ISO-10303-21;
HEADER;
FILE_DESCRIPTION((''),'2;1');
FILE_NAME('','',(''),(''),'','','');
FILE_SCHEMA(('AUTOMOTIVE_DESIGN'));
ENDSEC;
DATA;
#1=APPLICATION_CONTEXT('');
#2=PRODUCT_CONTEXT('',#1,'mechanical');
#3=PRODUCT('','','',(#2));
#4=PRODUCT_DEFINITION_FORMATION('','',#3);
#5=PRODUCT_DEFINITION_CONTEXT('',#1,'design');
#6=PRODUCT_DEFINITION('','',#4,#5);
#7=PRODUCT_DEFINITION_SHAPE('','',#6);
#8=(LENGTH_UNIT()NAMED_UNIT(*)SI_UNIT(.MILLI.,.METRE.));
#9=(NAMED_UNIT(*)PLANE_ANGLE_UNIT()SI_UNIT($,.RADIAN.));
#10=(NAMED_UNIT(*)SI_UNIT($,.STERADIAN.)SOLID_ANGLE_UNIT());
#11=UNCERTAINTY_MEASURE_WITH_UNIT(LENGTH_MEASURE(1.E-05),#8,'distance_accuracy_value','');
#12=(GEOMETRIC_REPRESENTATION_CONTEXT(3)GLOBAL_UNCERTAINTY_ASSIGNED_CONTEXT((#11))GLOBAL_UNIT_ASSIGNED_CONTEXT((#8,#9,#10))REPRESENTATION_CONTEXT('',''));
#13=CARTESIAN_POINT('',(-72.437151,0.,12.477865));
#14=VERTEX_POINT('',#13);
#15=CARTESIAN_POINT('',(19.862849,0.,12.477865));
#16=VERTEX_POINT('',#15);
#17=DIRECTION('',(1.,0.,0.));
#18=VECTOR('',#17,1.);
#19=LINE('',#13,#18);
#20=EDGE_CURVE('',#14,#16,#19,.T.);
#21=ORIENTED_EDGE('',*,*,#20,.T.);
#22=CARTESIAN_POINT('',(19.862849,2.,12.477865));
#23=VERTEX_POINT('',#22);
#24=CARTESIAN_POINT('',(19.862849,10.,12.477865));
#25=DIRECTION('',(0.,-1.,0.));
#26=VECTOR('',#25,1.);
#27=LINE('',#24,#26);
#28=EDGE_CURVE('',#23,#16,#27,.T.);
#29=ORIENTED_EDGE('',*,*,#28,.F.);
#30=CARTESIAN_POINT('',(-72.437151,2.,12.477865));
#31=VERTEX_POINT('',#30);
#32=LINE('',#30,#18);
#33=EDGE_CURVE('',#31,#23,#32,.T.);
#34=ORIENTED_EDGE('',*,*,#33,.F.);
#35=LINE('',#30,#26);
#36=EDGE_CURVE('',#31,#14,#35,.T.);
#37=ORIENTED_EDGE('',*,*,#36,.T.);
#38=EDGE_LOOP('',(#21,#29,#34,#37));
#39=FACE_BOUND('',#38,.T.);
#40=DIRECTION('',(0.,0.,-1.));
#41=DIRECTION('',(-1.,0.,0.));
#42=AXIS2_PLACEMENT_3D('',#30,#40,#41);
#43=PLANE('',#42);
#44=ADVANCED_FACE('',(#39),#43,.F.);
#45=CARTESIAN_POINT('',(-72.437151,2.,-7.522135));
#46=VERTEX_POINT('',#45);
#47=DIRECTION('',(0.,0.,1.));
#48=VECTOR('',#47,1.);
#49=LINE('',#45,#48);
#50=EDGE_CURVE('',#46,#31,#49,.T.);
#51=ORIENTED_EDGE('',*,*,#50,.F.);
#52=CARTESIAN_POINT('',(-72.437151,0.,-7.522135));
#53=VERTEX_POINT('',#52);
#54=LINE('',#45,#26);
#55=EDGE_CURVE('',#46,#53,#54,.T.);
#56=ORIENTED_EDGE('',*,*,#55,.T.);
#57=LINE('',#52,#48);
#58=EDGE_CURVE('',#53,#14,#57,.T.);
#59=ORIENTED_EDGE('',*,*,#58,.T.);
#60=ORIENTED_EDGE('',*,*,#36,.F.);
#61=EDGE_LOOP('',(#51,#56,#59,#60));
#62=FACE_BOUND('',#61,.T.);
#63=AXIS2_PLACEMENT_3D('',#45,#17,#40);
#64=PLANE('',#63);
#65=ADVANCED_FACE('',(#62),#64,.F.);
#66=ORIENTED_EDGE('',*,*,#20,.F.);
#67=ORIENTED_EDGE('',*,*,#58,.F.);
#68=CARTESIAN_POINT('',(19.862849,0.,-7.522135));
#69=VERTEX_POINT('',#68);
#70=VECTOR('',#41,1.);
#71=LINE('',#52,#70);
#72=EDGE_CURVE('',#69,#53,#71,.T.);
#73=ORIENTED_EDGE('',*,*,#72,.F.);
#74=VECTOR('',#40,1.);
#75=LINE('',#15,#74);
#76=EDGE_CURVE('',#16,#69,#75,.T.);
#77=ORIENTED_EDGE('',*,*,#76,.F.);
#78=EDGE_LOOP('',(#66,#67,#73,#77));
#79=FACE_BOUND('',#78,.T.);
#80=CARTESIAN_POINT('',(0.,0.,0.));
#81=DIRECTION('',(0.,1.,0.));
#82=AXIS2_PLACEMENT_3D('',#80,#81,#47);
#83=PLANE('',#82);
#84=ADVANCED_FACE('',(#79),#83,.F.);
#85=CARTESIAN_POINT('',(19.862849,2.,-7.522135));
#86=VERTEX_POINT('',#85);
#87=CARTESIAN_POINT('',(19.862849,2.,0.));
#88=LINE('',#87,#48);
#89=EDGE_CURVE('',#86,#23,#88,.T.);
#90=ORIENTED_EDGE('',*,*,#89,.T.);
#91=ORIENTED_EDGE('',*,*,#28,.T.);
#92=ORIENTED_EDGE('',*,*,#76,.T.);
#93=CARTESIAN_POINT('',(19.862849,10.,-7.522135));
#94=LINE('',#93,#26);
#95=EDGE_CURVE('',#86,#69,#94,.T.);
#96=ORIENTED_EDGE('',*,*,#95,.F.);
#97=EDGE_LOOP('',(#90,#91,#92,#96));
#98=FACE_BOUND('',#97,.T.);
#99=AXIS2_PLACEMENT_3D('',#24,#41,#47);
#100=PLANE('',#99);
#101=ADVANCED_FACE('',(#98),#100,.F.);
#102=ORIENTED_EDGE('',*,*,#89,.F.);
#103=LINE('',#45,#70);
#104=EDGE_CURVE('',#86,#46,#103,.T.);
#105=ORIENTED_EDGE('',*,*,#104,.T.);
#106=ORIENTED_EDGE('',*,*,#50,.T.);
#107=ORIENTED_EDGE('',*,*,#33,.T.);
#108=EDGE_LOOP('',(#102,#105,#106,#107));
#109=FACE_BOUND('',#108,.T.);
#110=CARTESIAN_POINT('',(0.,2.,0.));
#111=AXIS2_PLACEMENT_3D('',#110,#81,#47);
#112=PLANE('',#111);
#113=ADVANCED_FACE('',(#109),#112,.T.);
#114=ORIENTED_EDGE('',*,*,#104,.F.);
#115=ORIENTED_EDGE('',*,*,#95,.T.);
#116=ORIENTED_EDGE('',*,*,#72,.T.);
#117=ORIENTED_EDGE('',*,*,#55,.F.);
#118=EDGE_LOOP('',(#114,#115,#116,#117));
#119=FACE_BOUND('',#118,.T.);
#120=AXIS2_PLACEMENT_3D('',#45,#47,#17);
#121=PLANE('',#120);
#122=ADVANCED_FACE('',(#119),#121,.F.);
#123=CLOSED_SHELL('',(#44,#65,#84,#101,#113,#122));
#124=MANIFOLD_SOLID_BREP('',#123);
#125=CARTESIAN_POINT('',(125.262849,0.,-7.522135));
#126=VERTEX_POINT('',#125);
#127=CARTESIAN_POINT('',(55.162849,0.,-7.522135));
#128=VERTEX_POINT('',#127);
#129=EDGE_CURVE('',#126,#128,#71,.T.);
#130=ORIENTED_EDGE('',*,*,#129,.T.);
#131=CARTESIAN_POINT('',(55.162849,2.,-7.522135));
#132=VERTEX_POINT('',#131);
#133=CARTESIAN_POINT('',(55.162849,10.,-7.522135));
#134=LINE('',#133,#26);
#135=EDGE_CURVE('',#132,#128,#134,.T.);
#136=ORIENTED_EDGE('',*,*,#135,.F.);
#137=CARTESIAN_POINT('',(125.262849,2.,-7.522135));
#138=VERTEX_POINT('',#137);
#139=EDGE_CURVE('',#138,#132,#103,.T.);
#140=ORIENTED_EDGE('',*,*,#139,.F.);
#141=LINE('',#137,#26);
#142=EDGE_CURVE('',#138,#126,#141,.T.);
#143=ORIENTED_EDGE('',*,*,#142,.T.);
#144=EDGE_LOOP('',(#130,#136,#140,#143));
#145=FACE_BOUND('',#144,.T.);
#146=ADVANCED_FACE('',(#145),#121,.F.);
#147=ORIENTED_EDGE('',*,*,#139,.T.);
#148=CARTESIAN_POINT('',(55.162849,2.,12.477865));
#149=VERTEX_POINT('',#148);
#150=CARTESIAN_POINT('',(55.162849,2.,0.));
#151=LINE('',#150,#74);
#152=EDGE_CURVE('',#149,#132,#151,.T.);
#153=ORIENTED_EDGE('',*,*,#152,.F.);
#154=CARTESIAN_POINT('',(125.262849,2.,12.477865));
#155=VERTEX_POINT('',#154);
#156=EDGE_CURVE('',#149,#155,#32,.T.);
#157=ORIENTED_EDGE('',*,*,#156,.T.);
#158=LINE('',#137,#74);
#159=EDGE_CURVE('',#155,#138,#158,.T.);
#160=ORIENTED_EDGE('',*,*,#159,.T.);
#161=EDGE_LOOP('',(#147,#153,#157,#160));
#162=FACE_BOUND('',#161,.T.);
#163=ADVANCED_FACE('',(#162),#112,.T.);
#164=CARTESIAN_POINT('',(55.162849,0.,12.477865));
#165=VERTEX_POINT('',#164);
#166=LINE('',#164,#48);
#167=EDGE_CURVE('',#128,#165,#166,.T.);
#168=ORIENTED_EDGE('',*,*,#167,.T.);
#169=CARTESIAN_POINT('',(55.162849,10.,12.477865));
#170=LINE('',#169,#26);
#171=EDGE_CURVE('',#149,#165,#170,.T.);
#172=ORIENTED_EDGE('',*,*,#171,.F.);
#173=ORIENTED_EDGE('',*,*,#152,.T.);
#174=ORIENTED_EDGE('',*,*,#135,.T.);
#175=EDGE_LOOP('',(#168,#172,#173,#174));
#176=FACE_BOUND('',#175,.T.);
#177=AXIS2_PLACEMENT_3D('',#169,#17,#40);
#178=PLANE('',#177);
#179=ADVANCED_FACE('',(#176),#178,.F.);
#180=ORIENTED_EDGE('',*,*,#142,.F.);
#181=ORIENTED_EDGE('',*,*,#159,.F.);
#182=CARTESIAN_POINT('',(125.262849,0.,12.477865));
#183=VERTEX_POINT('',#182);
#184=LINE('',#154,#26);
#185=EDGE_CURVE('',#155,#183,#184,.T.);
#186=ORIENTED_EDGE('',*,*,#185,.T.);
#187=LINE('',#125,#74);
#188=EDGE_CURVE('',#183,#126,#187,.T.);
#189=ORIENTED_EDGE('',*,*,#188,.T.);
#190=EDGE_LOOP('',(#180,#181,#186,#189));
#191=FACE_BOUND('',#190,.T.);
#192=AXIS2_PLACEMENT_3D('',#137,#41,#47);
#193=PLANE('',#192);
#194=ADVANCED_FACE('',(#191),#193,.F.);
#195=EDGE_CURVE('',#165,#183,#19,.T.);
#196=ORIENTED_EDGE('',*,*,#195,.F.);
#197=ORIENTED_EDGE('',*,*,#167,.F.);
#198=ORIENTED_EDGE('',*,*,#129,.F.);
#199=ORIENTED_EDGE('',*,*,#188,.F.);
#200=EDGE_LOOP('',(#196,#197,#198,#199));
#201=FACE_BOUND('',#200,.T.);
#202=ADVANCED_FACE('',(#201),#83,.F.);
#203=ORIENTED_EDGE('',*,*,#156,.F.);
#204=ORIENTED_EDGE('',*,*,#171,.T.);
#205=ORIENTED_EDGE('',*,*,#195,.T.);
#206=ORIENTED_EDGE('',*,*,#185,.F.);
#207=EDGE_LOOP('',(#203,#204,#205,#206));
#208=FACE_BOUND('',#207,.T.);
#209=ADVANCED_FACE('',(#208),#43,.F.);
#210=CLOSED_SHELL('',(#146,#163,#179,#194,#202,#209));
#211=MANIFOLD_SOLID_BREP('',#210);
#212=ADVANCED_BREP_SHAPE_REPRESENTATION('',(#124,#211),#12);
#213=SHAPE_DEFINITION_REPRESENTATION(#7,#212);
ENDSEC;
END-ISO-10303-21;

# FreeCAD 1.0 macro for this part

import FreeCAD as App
import Part
import Sketcher

doc = App.newDocument("Part")
body = doc.addObject("PartDesign::Body", "Body")
body.AllowCompound = True

# Sketch on XZ plane
sketch1 = body.newObject("Sketcher::SketchObject", "Sketch")
sketch1.AttachmentSupport = (doc.getObject("XZ_Plane"), [""])
sketch1.MapMode = "FlatFace"
sketch1.addGeometry([
    Part.LineSegment(App.Vector(-72, -8, 0), App.Vector(-72, 12, 0)),
    Part.LineSegment(App.Vector(-72, 12, 0), App.Vector(125, 12, 0)),
    Part.LineSegment(App.Vector(125, 12, 0), App.Vector(125, -8, 0)),
    Part.LineSegment(App.Vector(125, -8, 0), App.Vector(-72, -8, 0)),
], False)
sketch1.addConstraint([
    Sketcher.Constraint("Coincident", 0, 2, 1, 1),
    Sketcher.Constraint("Coincident", 1, 2, 2, 1),
    Sketcher.Constraint("Coincident", 2, 2, 3, 1),
    Sketcher.Constraint("Coincident", 3, 2, 0, 1),
    Sketcher.Constraint("Vertical", 0),
    Sketcher.Constraint("Horizontal", 1),
    Sketcher.Constraint("Vertical", 2),
    Sketcher.Constraint("Horizontal", 3),
    Sketcher.Constraint("DistanceY", 0, 1, 0, 2, 20.0),
    Sketcher.Constraint("DistanceX", 1, 1, 1, 2, 197.7),
    Sketcher.Constraint("DistanceX", 0, 2, -1, 1, 72.437151),
    Sketcher.Constraint("DistanceY", -1, 1, 0, 2, 12.477865),
])
pad1 = body.newObject("PartDesign::Pad", "Pad")
pad1.Profile = sketch1
pad1.Length = 2
pad1.Reversed = True

# Sketch on XZ plane
sketch2 = body.newObject("Sketcher::SketchObject", "Sketch001")
sketch2.AttachmentSupport = (doc.getObject("XZ_Plane"), [""])
sketch2.MapMode = "FlatFace"
sketch2.addGeometry([
    Part.LineSegment(App.Vector(50, -8, 0), App.Vector(50, 12, 0)),
    Part.LineSegment(App.Vector(50, 12, 0), App.Vector(25, 12, 0)),
    Part.LineSegment(App.Vector(25, 12, 0), App.Vector(25, -8, 0)),
    Part.LineSegment(App.Vector(25, -8, 0), App.Vector(50, -8, 0)),
], False)
sketch2.addConstraint([
    Sketcher.Constraint("Coincident", 0, 2, 1, 1),
    Sketcher.Constraint("Coincident", 1, 2, 2, 1),
    Sketcher.Constraint("Coincident", 2, 2, 3, 1),
    Sketcher.Constraint("Coincident", 3, 2, 0, 1),
    Sketcher.Constraint("Vertical", 0),
    Sketcher.Constraint("Horizontal", 1),
    Sketcher.Constraint("Vertical", 2),
    Sketcher.Constraint("Horizontal", 3),
    Sketcher.Constraint("DistanceY", 0, 1, 0, 2, 20.0),
    Sketcher.Constraint("DistanceX", 1, 2, 1, 1, 25.3),
    Sketcher.Constraint("DistanceX", -1, 1, 0, 2, 50.162849),
    Sketcher.Constraint("DistanceY", -1, 1, 0, 2, 12.477865),
])
pocket1 = body.newObject("PartDesign::Pocket", "Pocket")
pocket1.Profile = sketch2
pocket1.Length = 10

# Sketch on XZ plane
sketch3 = body.newObject("Sketcher::SketchObject", "Sketch002")
sketch3.AttachmentSupport = (doc.getObject("XZ_Plane"), [""])
sketch3.MapMode = "FlatFace"
sketch3.addGeometry([
    Part.LineSegment(App.Vector(25, -8, 0), App.Vector(25, 12, 0)),  # 0
    Part.LineSegment(App.Vector(25, 12, 0), App.Vector(20, 12, 0)),  # 1
    Part.LineSegment(App.Vector(20, 12, 0), App.Vector(20, -8, 0)),  # 2
    Part.LineSegment(App.Vector(20, -8, 0), App.Vector(25, -8, 0)),  # 3
    Part.LineSegment(App.Vector(55, -8, 0), App.Vector(55, 12, 0)),  # 4
    Part.LineSegment(App.Vector(55, 12, 0), App.Vector(50, 12, 0)),  # 5
    Part.LineSegment(App.Vector(50, 12, 0), App.Vector(50, -8, 0)),  # 6
    Part.LineSegment(App.Vector(50, -8, 0), App.Vector(55, -8, 0)),  # 7
], False)
sketch3.addConstraint([
    Sketcher.Constraint("Coincident", 0, 2, 1, 1),
    Sketcher.Constraint("Coincident", 1, 2, 2, 1),
    Sketcher.Constraint("Coincident", 2, 2, 3, 1),
    Sketcher.Constraint("Coincident", 3, 2, 0, 1),
    Sketcher.Constraint("Coincident", 4, 2, 5, 1),
    Sketcher.Constraint("Coincident", 5, 2, 6, 1),
    Sketcher.Constraint("Coincident", 6, 2, 7, 1),
    Sketcher.Constraint("Coincident", 7, 2, 4, 1),
    Sketcher.Constraint("Vertical", 0),
    Sketcher.Constraint("Horizontal", 1),
    Sketcher.Constraint("Vertical", 2),
    Sketcher.Constraint("Horizontal", 3),
    Sketcher.Constraint("Vertical", 4),
    Sketcher.Constraint("Horizontal", 5),
    Sketcher.Constraint("Vertical", 6),
    Sketcher.Constraint("Horizontal", 7),
    Sketcher.Constraint("Horizontal", 1, 2, 4, 2),
    Sketcher.Constraint("Horizontal", 3, 2, 6, 2),
    Sketcher.Constraint("Equal", 3, 5),
    Sketcher.Constraint("DistanceX", 1, 2, 1, 1, 5.0),
    Sketcher.Constraint("DistanceY", 0, 1, 0, 2, 20.0),
    Sketcher.Constraint("DistanceX", 0, 2, 4, 2, 30.3),
    Sketcher.Constraint("DistanceX", -1, 1, 0, 2, 24.862849),
    Sketcher.Constraint("DistanceY", -1, 1, 0, 2, 12.477865),
])
pocket2 = body.newObject("PartDesign::Pocket", "Pocket001")
pocket2.Profile = sketch3
pocket2.Length = 10

doc.recompute()
